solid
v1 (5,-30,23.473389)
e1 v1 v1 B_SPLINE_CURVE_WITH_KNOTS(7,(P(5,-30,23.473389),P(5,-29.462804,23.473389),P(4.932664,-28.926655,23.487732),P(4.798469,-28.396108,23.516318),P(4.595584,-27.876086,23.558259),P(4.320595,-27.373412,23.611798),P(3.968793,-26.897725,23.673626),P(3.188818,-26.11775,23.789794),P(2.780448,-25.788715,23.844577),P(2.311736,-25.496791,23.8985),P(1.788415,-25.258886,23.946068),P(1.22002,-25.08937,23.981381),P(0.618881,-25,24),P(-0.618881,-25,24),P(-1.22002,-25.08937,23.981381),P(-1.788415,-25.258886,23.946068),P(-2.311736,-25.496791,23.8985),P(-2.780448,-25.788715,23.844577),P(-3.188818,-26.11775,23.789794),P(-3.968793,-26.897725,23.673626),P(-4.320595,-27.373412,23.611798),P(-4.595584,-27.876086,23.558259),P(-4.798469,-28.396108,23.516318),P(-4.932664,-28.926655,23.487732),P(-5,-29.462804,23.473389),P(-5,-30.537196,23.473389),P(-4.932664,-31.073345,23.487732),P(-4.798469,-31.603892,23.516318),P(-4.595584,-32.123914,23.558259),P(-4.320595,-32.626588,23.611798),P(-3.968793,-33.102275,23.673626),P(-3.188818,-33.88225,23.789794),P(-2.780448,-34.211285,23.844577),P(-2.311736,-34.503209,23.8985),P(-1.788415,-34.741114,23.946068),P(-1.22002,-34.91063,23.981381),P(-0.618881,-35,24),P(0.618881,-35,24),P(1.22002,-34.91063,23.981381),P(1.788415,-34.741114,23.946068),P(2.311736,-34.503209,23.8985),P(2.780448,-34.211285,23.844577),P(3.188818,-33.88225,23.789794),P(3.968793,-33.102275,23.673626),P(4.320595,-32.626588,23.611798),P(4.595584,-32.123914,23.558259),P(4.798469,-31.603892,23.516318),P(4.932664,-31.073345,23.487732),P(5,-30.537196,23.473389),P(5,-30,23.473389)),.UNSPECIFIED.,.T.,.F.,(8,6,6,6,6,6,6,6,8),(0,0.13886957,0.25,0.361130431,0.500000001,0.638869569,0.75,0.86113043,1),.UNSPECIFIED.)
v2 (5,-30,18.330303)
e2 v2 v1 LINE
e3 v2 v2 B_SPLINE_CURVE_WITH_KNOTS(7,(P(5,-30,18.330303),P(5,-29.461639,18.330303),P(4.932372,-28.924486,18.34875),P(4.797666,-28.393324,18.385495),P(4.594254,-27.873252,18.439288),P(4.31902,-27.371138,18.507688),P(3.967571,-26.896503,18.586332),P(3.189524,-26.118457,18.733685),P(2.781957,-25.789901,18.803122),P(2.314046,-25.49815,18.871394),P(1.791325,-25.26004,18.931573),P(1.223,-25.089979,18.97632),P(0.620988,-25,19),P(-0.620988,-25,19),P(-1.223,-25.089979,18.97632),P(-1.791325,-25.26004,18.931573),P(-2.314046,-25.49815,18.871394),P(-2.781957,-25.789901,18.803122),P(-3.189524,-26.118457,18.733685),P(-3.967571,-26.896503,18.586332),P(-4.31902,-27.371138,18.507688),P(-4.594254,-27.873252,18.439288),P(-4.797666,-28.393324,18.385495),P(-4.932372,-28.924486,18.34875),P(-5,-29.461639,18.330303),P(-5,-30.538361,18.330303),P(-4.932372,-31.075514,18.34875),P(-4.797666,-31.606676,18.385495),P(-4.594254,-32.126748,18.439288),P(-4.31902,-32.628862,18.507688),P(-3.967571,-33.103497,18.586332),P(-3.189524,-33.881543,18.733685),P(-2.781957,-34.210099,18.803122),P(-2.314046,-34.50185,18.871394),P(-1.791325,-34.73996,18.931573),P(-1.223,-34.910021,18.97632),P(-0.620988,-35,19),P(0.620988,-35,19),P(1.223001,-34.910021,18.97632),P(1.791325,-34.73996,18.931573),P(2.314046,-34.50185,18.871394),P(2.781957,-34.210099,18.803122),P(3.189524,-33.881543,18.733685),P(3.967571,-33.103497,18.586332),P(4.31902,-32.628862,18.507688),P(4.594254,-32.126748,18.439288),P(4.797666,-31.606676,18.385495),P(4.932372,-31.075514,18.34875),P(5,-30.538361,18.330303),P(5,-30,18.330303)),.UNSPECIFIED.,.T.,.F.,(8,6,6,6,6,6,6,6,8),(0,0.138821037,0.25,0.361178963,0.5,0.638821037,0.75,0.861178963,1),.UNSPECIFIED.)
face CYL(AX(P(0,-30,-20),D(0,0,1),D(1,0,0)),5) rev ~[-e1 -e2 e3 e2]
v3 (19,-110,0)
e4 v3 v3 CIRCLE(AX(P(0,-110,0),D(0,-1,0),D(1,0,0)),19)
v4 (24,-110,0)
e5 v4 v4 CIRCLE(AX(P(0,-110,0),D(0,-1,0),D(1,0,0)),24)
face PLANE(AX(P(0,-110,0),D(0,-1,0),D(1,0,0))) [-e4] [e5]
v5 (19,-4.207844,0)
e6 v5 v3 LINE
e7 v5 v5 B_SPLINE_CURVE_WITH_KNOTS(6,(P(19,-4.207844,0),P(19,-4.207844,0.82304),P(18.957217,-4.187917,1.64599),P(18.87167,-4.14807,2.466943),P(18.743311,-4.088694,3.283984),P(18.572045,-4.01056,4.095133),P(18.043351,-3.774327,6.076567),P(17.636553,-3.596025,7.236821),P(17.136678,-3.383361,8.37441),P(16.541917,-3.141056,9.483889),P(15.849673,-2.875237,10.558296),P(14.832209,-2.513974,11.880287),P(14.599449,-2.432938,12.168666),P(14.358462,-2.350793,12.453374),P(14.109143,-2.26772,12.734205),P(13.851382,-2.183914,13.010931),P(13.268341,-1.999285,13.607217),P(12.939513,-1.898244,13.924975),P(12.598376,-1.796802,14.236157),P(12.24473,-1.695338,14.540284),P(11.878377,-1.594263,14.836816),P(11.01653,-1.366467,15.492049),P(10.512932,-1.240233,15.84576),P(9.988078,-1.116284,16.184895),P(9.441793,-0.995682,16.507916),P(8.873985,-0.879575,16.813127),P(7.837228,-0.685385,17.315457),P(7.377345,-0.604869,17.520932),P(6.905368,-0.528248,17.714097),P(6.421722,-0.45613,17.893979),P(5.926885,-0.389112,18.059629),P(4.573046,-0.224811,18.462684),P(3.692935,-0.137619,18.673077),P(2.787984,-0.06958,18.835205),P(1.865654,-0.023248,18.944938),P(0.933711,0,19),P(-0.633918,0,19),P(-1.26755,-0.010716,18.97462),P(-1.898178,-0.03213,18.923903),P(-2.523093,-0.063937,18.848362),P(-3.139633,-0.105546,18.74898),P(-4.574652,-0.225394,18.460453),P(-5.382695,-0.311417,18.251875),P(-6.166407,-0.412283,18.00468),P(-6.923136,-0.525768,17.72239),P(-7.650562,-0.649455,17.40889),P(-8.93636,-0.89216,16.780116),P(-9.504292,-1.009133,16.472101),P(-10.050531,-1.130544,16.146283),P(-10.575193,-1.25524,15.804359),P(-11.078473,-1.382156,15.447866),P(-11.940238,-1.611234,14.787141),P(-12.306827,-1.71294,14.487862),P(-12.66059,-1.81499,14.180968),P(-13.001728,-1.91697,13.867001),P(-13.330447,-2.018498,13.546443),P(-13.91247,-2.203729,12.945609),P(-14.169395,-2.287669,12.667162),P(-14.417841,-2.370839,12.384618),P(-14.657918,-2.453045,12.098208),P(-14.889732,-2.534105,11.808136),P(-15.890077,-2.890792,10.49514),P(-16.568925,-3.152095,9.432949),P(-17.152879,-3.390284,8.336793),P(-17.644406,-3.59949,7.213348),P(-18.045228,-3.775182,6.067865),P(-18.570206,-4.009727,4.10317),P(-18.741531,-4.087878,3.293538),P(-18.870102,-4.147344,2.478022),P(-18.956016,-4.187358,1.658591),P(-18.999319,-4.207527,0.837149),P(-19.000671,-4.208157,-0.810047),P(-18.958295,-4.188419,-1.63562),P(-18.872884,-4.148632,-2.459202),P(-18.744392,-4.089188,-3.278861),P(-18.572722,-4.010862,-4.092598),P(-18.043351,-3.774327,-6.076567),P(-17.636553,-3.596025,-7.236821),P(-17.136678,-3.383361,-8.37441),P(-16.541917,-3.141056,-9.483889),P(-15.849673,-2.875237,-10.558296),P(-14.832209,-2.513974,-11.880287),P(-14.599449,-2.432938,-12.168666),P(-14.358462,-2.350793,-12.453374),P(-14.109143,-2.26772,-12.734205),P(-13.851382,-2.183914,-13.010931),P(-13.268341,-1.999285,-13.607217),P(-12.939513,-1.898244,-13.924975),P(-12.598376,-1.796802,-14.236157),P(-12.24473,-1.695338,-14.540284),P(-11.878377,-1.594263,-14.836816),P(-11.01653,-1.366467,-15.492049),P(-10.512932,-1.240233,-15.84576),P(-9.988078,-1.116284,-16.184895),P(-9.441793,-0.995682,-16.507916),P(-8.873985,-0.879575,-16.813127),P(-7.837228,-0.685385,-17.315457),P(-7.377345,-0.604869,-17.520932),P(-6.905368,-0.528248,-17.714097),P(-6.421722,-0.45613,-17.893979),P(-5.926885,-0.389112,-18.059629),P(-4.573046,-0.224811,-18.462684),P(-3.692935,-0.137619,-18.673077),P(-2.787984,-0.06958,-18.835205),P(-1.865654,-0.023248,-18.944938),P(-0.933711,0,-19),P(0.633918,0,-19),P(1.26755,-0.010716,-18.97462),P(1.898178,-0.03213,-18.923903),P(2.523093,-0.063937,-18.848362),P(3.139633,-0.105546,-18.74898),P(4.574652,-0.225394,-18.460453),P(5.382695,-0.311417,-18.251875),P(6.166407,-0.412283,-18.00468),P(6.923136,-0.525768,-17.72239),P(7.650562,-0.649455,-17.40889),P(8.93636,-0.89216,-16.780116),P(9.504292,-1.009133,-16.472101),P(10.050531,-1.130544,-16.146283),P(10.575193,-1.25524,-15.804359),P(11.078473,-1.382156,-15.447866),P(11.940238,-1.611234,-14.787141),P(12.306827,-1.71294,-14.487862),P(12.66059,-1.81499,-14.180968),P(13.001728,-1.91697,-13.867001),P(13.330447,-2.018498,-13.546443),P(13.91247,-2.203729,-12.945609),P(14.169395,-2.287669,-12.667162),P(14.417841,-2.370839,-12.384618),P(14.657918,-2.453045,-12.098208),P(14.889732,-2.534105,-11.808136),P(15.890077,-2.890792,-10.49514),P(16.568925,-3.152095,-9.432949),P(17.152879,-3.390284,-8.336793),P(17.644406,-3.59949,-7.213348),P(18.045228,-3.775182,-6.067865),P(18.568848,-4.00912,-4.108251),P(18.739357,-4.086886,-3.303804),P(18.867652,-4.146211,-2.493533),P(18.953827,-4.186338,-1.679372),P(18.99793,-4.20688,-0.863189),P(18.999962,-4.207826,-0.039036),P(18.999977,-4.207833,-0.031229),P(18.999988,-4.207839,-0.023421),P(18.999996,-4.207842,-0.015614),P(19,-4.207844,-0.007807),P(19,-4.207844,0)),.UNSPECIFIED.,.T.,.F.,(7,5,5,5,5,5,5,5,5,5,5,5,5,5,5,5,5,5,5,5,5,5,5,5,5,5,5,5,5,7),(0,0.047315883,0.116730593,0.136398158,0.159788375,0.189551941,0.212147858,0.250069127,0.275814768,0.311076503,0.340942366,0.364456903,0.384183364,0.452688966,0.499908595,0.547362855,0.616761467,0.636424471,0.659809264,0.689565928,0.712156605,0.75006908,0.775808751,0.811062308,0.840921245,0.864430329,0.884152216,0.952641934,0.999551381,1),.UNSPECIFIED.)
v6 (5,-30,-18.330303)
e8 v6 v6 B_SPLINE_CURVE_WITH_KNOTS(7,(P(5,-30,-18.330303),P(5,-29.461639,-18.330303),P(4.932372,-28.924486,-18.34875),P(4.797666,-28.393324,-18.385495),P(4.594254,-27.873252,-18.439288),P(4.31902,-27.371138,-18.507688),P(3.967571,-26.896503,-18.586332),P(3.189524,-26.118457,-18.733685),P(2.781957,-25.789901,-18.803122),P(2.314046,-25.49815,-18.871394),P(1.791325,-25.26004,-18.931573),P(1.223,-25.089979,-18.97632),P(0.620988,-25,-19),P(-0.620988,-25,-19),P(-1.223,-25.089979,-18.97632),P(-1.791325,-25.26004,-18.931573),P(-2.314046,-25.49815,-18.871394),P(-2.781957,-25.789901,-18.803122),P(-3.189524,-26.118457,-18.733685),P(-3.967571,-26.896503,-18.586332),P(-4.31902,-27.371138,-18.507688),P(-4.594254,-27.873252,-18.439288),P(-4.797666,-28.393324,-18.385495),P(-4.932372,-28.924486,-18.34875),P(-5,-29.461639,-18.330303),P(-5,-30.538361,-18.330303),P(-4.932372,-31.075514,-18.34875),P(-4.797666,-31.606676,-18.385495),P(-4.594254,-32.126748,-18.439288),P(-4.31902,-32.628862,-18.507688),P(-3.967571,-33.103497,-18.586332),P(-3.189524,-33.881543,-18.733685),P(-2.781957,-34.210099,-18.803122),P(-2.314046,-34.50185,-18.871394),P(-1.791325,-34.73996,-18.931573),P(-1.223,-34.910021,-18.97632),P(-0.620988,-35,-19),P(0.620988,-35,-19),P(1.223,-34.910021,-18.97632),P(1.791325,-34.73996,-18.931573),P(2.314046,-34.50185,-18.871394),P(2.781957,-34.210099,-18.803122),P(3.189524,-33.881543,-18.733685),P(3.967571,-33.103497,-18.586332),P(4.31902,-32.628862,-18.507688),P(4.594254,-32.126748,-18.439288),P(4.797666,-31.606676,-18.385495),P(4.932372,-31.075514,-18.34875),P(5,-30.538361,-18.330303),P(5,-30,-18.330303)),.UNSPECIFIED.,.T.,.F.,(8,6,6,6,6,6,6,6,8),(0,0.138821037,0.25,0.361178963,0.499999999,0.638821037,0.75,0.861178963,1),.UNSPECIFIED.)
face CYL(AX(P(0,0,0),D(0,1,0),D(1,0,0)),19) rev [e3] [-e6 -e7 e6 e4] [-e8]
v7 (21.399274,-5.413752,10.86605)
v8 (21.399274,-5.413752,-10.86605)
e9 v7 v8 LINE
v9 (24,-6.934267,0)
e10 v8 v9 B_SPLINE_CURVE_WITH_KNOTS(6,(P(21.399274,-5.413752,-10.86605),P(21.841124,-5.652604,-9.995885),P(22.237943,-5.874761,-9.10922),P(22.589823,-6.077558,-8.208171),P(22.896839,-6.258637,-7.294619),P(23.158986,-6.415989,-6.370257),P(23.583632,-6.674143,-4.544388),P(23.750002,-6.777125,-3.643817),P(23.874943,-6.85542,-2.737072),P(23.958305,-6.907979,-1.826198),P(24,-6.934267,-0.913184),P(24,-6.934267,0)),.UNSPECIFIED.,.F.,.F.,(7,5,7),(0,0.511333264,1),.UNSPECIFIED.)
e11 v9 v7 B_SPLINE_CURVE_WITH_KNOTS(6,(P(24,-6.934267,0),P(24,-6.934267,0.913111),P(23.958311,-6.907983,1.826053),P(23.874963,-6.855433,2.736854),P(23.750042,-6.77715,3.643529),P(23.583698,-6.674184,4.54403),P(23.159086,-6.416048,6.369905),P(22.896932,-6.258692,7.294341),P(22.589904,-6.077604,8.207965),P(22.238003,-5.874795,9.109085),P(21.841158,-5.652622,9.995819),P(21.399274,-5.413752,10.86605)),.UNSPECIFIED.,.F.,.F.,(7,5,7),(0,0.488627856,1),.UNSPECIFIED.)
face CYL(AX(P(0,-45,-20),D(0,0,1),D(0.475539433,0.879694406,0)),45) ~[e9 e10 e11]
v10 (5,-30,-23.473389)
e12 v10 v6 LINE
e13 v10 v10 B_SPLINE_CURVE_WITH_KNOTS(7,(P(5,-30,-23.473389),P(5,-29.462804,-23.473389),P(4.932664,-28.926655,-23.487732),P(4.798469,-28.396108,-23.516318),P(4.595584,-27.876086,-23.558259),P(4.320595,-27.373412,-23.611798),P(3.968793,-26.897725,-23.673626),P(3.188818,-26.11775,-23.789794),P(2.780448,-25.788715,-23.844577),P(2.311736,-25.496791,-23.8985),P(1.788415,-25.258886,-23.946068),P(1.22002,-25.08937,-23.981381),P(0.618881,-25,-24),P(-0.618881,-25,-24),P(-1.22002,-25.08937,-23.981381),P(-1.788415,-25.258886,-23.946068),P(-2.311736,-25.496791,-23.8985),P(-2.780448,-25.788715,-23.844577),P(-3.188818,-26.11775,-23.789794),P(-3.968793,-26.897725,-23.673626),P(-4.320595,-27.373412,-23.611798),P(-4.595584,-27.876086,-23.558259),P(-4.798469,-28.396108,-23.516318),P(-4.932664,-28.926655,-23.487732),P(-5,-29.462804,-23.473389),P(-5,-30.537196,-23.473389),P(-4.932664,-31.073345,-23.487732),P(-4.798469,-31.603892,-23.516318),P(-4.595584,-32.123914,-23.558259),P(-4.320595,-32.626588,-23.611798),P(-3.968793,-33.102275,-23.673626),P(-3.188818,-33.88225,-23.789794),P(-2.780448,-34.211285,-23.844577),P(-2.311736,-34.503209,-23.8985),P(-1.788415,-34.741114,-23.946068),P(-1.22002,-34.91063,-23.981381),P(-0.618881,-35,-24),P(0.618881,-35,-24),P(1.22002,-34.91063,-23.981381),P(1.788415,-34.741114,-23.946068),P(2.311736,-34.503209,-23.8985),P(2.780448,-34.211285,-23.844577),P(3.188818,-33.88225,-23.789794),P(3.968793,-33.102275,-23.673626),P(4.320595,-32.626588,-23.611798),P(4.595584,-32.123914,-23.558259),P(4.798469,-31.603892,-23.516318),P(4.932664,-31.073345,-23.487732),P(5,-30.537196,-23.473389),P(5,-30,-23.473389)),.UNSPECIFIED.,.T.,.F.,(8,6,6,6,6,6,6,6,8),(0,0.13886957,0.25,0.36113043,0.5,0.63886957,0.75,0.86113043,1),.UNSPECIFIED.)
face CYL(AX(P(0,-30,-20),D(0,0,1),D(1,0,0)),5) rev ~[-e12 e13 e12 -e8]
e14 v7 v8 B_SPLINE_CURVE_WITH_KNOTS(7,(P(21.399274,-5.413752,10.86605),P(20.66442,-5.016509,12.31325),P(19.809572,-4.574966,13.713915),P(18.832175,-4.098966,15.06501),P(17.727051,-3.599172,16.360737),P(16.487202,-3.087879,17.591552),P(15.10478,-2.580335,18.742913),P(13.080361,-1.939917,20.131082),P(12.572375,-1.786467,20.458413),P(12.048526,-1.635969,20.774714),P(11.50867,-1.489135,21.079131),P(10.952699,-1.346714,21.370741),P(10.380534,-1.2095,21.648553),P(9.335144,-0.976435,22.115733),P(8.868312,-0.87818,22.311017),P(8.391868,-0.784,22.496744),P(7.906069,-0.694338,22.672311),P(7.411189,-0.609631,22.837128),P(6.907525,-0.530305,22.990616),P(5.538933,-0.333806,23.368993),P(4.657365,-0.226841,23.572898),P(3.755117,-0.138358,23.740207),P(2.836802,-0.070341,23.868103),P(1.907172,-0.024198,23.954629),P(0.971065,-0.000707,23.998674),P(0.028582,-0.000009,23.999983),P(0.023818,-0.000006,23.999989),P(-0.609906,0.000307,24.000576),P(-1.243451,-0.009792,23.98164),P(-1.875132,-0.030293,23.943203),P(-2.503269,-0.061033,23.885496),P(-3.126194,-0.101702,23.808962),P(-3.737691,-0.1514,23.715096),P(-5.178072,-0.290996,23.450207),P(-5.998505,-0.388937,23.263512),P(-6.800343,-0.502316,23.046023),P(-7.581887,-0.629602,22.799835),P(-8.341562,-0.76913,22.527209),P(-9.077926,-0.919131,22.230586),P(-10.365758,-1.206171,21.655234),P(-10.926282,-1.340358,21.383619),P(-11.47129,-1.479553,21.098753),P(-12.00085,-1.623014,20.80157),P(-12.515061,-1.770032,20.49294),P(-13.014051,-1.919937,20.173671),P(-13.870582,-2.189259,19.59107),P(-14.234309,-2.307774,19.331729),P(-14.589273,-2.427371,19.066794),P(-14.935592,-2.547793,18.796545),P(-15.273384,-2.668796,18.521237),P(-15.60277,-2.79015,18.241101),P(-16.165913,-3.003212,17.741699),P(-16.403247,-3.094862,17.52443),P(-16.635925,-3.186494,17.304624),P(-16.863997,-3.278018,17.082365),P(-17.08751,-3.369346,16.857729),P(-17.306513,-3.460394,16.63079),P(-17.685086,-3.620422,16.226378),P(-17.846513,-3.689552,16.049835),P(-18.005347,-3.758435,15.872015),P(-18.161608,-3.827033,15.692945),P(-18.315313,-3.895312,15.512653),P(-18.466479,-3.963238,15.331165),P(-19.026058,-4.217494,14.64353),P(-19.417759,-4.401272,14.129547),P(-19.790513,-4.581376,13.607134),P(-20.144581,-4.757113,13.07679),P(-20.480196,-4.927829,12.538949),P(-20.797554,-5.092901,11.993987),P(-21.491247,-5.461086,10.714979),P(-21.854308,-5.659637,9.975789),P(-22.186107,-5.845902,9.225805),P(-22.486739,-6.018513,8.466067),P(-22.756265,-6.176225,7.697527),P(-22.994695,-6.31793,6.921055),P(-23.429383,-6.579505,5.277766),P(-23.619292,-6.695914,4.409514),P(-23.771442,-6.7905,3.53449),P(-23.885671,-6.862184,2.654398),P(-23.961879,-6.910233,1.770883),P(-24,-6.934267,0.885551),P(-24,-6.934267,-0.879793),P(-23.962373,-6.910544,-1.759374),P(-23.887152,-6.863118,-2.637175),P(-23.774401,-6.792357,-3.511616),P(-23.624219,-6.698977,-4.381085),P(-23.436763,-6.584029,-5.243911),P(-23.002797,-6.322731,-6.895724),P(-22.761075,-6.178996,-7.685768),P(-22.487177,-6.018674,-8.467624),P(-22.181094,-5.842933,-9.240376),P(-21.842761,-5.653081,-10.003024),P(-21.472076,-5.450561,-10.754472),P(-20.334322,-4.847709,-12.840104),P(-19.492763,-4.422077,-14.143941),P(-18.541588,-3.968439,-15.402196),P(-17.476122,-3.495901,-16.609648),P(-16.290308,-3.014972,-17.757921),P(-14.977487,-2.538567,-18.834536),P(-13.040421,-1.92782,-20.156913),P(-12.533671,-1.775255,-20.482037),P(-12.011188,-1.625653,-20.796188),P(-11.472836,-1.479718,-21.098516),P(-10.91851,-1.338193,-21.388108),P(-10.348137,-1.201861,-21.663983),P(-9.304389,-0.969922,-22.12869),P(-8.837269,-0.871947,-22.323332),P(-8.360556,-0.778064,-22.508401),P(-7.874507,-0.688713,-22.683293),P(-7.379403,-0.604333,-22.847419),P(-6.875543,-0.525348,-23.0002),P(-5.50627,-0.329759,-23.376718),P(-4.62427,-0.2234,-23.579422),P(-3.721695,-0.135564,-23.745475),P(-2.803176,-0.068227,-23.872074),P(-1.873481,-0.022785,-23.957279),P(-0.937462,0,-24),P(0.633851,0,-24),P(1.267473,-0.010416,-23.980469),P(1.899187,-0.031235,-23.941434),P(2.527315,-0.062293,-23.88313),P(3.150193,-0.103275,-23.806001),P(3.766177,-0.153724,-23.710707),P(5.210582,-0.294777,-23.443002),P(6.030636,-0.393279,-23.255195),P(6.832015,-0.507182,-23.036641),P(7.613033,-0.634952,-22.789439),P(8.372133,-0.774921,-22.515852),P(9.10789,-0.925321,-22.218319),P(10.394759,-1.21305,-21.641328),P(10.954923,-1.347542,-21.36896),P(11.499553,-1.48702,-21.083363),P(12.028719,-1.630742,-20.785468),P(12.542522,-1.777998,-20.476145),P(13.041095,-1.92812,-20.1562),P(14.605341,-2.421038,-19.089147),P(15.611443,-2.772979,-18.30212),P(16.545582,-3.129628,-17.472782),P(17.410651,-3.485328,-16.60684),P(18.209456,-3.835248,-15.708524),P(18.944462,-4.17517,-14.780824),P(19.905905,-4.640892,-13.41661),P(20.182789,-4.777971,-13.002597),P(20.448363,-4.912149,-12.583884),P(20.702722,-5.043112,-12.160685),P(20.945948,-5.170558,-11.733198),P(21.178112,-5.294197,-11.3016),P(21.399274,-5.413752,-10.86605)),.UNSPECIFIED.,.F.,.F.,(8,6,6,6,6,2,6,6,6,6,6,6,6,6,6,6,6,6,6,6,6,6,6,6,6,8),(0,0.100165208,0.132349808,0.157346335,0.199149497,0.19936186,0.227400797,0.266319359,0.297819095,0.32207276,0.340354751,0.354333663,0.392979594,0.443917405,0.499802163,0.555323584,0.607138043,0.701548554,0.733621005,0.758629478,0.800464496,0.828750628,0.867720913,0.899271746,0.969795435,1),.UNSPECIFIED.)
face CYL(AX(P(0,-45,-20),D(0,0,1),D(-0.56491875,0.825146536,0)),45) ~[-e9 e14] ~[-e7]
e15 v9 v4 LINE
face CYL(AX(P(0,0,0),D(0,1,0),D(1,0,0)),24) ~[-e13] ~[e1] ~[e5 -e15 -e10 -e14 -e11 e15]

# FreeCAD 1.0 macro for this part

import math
import FreeCAD as App
import Part
import Sketcher
from FreeCAD import Vector

doc = App.newDocument("Part")
body = doc.addObject("PartDesign::Body", "Body")

# Sketch on XZ plane
sketch1 = body.newObject("Sketcher::SketchObject", "Sketch")
sketch1.AttachmentSupport = (doc.getObject("XZ_Plane"), [""])
sketch1.MapMode = "FlatFace"
sketch1.addGeometry(Part.Circle(Vector(0, 0, 0), Vector(0, 0, 1), 24), False)
sketch1.addGeometry(Part.Circle(Vector(0, 0, 0), Vector(0, 0, 1), 19), False)
sketch1.addConstraint(Sketcher.Constraint("Coincident", 0, 3, -1, 1))
sketch1.addConstraint(Sketcher.Constraint("Coincident", 1, 3, -1, 1))
sketch1.addConstraint(Sketcher.Constraint("Diameter", 0, 48.0))
sketch1.addConstraint(Sketcher.Constraint("Diameter", 1, 38.0))
pad1 = body.newObject("PartDesign::Pad", "Pad")
pad1.Profile = sketch1
pad1.Length = 110

# Sketch on XY plane
sketch2 = body.newObject("Sketcher::SketchObject", "Sketch001")
sketch2.AttachmentSupport = (doc.getObject("XY_Plane"), [""])
sketch2.MapMode = "FlatFace"
sketch2.AttachmentOffset = App.Placement(Vector(0, 0, -20), App.Rotation())
sketch2.addGeometry(Part.Circle(Vector(0, -30, 0), Vector(0, 0, 1), 5), False)
sketch2.addConstraint(Sketcher.Constraint("PointOnObject", 0, 3, -2))
sketch2.addConstraint(Sketcher.Constraint("Diameter", 0, 10.0))
sketch2.addConstraint(Sketcher.Constraint("DistanceY", 0, 3, -1, 1, 30.0))
pocket1 = body.newObject("PartDesign::Pocket", "Pocket")
pocket1.Profile = sketch2
pocket1.Length = 96.8
pocket1.Midplane = True

# Sketch on XY plane
sketch3 = body.newObject("Sketcher::SketchObject", "Sketch002")
sketch3.AttachmentSupport = (doc.getObject("XY_Plane"), [""])
sketch3.MapMode = "FlatFace"
sketch3.AttachmentOffset = App.Placement(Vector(0, 0, -20), App.Rotation())
sketch3.addGeometry(Part.ArcOfCircle(Part.Circle(Vector(0, -45, 0), Vector(0, 0, 1), 45), math.radians(56.641134), math.radians(61.605522)), False)
sketch3.addGeometry(Part.LineSegment(Vector(24.744656, -7.414072, 0), Vector(24.744656, 8.409485, 0)), False)
sketch3.addGeometry(Part.LineSegment(Vector(24.744656, 8.409485, 0), Vector(-25.421344, 8.409485, 0)), False)
sketch3.addGeometry(Part.LineSegment(Vector(-25.421344, 8.409485, 0), Vector(-25.421344, -7.868406, 0)), False)
sketch3.addGeometry(Part.ArcOfCircle(Part.Circle(Vector(0, -45, 0), Vector(0, 0, 1), 45), math.radians(61.605522), math.radians(124.396649)), False)
sketch3.addConstraint(Sketcher.Constraint("Coincident", 0, 1, 1, 1))
sketch3.addConstraint(Sketcher.Constraint("Coincident", 1, 2, 2, 1))
sketch3.addConstraint(Sketcher.Constraint("Coincident", 2, 2, 3, 1))
sketch3.addConstraint(Sketcher.Constraint("Coincident", 3, 2, 4, 2))
sketch3.addConstraint(Sketcher.Constraint("Tangent", 4, 1, 0, 2))
sketch3.addConstraint(Sketcher.Constraint("Vertical", 1))
sketch3.addConstraint(Sketcher.Constraint("Horizontal", 2))
sketch3.addConstraint(Sketcher.Constraint("Vertical", 3))
sketch3.addConstraint(Sketcher.Constraint("Equal", 0, 4))
sketch3.addConstraint(Sketcher.Constraint("PointOnObject", 0, 3, -2))
sketch3.addConstraint(Sketcher.Constraint("Radius", 0, 45.0))
sketch3.addConstraint(Sketcher.Constraint("DistanceY", 0, 3, -1, 1, 45.0))
sketch3.addConstraint(Sketcher.Constraint("DistanceX", 2, 2, 2, 1, 50.166))
sketch3.addConstraint(Sketcher.Constraint("DistanceY", 3, 2, 3, 1, 16.277891))
sketch3.addConstraint(Sketcher.Constraint("DistanceY", 1, 1, 1, 2, 15.823557))
sketch3.addConstraint(Sketcher.Constraint("DistanceY", 4, 1, -1, 1, 5.413752))
pocket2 = body.newObject("PartDesign::Pocket", "Pocket001")
pocket2.Profile = sketch3
pocket2.Length = 95.6
pocket2.Midplane = True

doc.recompute()
